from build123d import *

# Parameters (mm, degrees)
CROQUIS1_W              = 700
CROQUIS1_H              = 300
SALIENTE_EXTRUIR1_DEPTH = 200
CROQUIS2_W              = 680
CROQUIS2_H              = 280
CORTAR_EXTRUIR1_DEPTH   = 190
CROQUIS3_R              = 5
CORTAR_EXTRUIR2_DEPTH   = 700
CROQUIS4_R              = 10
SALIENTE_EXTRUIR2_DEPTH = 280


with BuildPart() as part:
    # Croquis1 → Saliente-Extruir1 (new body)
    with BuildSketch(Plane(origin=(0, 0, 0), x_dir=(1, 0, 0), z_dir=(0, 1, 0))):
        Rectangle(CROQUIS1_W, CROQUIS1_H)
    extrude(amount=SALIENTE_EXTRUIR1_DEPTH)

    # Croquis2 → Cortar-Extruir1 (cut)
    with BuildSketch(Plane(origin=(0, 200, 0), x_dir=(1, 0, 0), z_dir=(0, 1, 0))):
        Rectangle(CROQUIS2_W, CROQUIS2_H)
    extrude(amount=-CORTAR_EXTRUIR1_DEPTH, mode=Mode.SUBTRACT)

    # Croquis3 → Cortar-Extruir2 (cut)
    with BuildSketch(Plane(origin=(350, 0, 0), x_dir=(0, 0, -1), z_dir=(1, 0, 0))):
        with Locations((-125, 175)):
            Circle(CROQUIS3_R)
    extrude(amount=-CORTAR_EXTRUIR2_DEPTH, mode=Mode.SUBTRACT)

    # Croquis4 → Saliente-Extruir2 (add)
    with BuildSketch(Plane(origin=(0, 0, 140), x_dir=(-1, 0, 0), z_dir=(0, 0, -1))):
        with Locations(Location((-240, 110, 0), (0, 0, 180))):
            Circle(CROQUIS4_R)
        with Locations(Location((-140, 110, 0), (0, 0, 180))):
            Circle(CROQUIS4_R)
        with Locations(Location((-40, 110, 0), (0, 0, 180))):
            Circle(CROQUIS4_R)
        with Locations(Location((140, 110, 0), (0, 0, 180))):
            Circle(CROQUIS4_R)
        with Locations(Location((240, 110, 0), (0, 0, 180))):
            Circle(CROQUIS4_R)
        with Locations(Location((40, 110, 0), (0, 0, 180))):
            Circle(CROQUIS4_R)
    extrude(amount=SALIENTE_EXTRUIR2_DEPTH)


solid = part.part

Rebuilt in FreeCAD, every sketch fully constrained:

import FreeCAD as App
import Part
import Sketcher

V = App.Vector


def add_polygon(sketch, points):
    """Adds a closed chain of lines whose ends are joined by coincident constraints."""
    first, n = sketch.GeometryCount, len(points)
    for a, b in zip(points, points[1:] + points[:1]):
        sketch.addGeometry(Part.LineSegment(App.Vector(*a, 0), App.Vector(*b, 0)), False)
    for i in range(n):
        sketch.addConstraint(Sketcher.Constraint("Coincident", first + i, 2, first + (i + 1) % n, 1))

doc = App.newDocument("Part")
params = doc.addObject("Spreadsheet::Sheet", "Params")
for row, (alias, value) in enumerate([
    ("sketch1_width", "700 mm"),
    ("sketch1_height", "300 mm"),
    ("pad1_length", "200 mm"),
    ("sketch2_width", "680 mm"),
    ("sketch2_height", "280 mm"),
    ("pocket1_length", "190 mm"),
    ("sketch3_diameter", "10 mm"),
    ("pocket2_length", "700 mm"),
    ("sketch4_diameter", "20 mm"),
    ("pad2_length", "280 mm"),
], start=1):
    params.set(f"A{row}", alias)
    params.set(f"B{row}", "=" + value)
    params.setAlias(f"B{row}", alias)

body = doc.addObject("PartDesign::Body", "Body")

# Sketch on XZ plane
sketch1 = body.newObject("Sketcher::SketchObject", "Sketch")
sketch1.AttachmentSupport = (doc.getObject("XZ_Plane"), [""])
sketch1.MapMode = "FlatFace"
add_polygon(sketch1, [(-350, -150), (-350, 150), (350, 150), (350, -150)])  # lines 0-3
sketch1.addConstraint([
    Sketcher.Constraint("Vertical", 0),
    Sketcher.Constraint("Horizontal", 1),
    Sketcher.Constraint("Vertical", 2),
    Sketcher.Constraint("Horizontal", 3),
    Sketcher.Constraint("Symmetric", 0, 2, 2, 2, -1, 1),
    Sketcher.Constraint("DistanceX", 1, 1, 1, 2, 700.0),
    Sketcher.Constraint("DistanceY", 0, 1, 0, 2, 300.0),
])
sketch1.setExpression("Constraints[9]", "Params.sketch1_width")
sketch1.setExpression("Constraints[10]", "Params.sketch1_height")
pad1 = body.newObject("PartDesign::Pad", "Pad")
pad1.Profile = sketch1
pad1.setExpression("Length", "Params.pad1_length")
pad1.Reversed = True

# Sketch on XZ plane
sketch2 = body.newObject("Sketcher::SketchObject", "Sketch001")
sketch2.AttachmentSupport = (doc.getObject("XZ_Plane"), [""])
sketch2.MapMode = "FlatFace"
sketch2.AttachmentOffset = App.Placement(V(0, 0, -200), App.Rotation())
add_polygon(sketch2, [(-340, -140), (-340, 140), (340, 140), (340, -140)])  # lines 0-3
sketch2.addConstraint([
    Sketcher.Constraint("Vertical", 0),
    Sketcher.Constraint("Horizontal", 1),
    Sketcher.Constraint("Vertical", 2),
    Sketcher.Constraint("Horizontal", 3),
    Sketcher.Constraint("Symmetric", 0, 2, 2, 2, -1, 1),
    Sketcher.Constraint("DistanceX", 1, 1, 1, 2, 680.0),
    Sketcher.Constraint("DistanceY", 0, 1, 0, 2, 280.0),
])
sketch2.setExpression("Constraints[9]", "Params.sketch2_width")
sketch2.setExpression("Constraints[10]", "Params.sketch2_height")
pocket1 = body.newObject("PartDesign::Pocket", "Pocket")
pocket1.Profile = sketch2
pocket1.setExpression("Length", "Params.pocket1_length")
pocket1.Reversed = True

# Sketch on YZ plane
sketch3 = body.newObject("Sketcher::SketchObject", "Sketch002")
sketch3.AttachmentSupport = (doc.getObject("YZ_Plane"), [""])
sketch3.MapMode = "FlatFace"
sketch3.AttachmentOffset = App.Placement(V(0, 0, 350), App.Rotation())
sketch3.addGeometry(Part.Circle(V(175, 125, 0), V(0, 0, 1), 5), False)
sketch3.addConstraint([
    Sketcher.Constraint("Diameter", 0, 10.0),
    Sketcher.Constraint("DistanceX", -1, 1, 0, 3, 175.0),
    Sketcher.Constraint("DistanceY", -1, 1, 0, 3, 125.0),
])
sketch3.setExpression("Constraints[0]", "Params.sketch3_diameter")
pocket2 = body.newObject("PartDesign::Pocket", "Pocket001")
pocket2.Profile = sketch3
pocket2.setExpression("Length", "Params.pocket2_length")

# Sketch on XY plane
sketch4 = body.newObject("Sketcher::SketchObject", "Sketch003")
sketch4.AttachmentSupport = (doc.getObject("XY_Plane"), [""])
sketch4.MapMode = "FlatFace"
sketch4.AttachmentOffset = App.Placement(V(0, 0, 140), App.Rotation())
sketch4.addGeometry([
    Part.Circle(V(240, 110, 0), V(0, 0, 1), 10),  # 0
    Part.Circle(V(140, 110, 0), V(0, 0, 1), 10),  # 1
    Part.Circle(V(40, 110, 0), V(0, 0, 1), 10),  # 2
    Part.Circle(V(-140, 110, 0), V(0, 0, 1), 10),  # 3
    Part.Circle(V(-240, 110, 0), V(0, 0, 1), 10),  # 4
    Part.Circle(V(-40, 110, 0), V(0, 0, 1), 10),  # 5
], False)
sketch4.addConstraint([
    Sketcher.Constraint("Equal", 0, 1),
    Sketcher.Constraint("Equal", 1, 2),
    Sketcher.Constraint("Equal", 2, 3),
    Sketcher.Constraint("Equal", 3, 4),
    Sketcher.Constraint("Equal", 4, 5),
    Sketcher.Constraint("Symmetric", 1, 3, 3, 3, -2),
    Sketcher.Constraint("Symmetric", 0, 3, 4, 3, -2),
    Sketcher.Constraint("Symmetric", 2, 3, 5, 3, -2),
    Sketcher.Constraint("Horizontal", 0, 3, 1, 3),
    Sketcher.Constraint("Horizontal", 1, 3, 2, 3),
    Sketcher.Constraint("Diameter", 0, 20.0),
    Sketcher.Constraint("DistanceX", -1, 1, 0, 3, 240.0),
    Sketcher.Constraint("DistanceY", -1, 1, 0, 3, 110.0),
    Sketcher.Constraint("DistanceX", -1, 1, 1, 3, 140.0),
    Sketcher.Constraint("DistanceX", -1, 1, 2, 3, 40.0),
])
sketch4.setExpression("Constraints[10]", "Params.sketch4_diameter")
pad2 = body.newObject("PartDesign::Pad", "Pad001")
pad2.Profile = sketch4
pad2.setExpression("Length", "Params.pad2_length")
pad2.Reversed = True

doc.recompute()
